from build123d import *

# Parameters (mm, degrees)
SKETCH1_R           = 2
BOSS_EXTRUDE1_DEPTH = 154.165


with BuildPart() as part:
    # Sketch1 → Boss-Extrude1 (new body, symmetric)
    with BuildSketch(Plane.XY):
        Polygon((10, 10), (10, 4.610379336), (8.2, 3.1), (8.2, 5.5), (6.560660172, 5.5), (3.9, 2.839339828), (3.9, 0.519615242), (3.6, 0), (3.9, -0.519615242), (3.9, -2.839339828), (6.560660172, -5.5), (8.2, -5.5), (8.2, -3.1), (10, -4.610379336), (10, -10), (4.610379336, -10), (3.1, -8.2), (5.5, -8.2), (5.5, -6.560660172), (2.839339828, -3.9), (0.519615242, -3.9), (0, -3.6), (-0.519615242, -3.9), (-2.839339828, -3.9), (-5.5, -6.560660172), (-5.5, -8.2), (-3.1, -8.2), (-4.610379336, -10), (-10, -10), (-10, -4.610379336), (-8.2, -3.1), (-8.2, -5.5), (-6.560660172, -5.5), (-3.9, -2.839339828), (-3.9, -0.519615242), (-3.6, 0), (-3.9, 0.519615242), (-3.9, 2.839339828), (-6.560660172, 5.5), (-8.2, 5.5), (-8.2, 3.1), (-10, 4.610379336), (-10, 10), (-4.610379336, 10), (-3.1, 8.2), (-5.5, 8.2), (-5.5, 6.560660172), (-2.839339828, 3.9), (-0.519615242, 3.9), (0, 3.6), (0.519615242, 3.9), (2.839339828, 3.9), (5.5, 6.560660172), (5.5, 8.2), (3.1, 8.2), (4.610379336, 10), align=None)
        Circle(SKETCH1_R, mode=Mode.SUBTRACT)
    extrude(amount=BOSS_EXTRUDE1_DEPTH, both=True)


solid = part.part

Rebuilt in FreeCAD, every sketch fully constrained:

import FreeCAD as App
import Part
import Sketcher
from FreeCAD import Vector
Q = App.Units.Quantity

doc = App.newDocument("Part")
params = doc.addObject("Spreadsheet::Sheet", "Params")
for row, (alias, value) in enumerate([
    ("sketch1_diameter", "4 mm"),
    ("sketch1_width", "2.4 mm"),
    ("sketch1_length", "0.6 mm"),
    ("pad1_length", "308.33 mm"),
], start=1):
    params.set(f"A{row}", alias)
    params.set(f"B{row}", "=" + value)
    params.setAlias(f"B{row}", alias)

body = doc.addObject("PartDesign::Body", "Body")

# Sketch on XY plane
sketch1 = body.newObject("Sketcher::SketchObject", "Sketch")
sketch1.AttachmentSupport = (doc.getObject("XY_Plane"), [""])
sketch1.MapMode = "FlatFace"
sketch1.addGeometry([
    Part.LineSegment(Vector(10, 4.6, 0), Vector(10, 10, 0)),  # 0
    Part.LineSegment(Vector(10, 10, 0), Vector(4.6, 10, 0)),  # 1
    Part.LineSegment(Vector(4.6, 10, 0), Vector(3.1, 8.2, 0)),  # 2
    Part.LineSegment(Vector(3.1, 8.2, 0), Vector(5.5, 8.2, 0)),  # 3
    Part.LineSegment(Vector(5.5, 8.2, 0), Vector(5.5, 6.6, 0)),  # 4
    Part.LineSegment(Vector(5.5, 6.6, 0), Vector(2.8, 3.9, 0)),  # 5
    Part.LineSegment(Vector(2.8, 3.9, 0), Vector(0.5, 3.9, 0)),  # 6
    Part.LineSegment(Vector(0.5, 3.9, 0), Vector(0, 3.6, 0)),  # 7
    Part.LineSegment(Vector(0, 3.6, 0), Vector(-0.5, 3.9, 0)),  # 8
    Part.LineSegment(Vector(-0.5, 3.9, 0), Vector(-2.8, 3.9, 0)),  # 9
    Part.LineSegment(Vector(-2.8, 3.9, 0), Vector(-5.5, 6.6, 0)),  # 10
    Part.LineSegment(Vector(-5.5, 6.6, 0), Vector(-5.5, 8.2, 0)),  # 11
    Part.LineSegment(Vector(-5.5, 8.2, 0), Vector(-3.1, 8.2, 0)),  # 12
    Part.LineSegment(Vector(-3.1, 8.2, 0), Vector(-4.6, 10, 0)),  # 13
    Part.LineSegment(Vector(-4.6, 10, 0), Vector(-10, 10, 0)),  # 14
    Part.LineSegment(Vector(-10, 10, 0), Vector(-10, 4.6, 0)),  # 15
    Part.LineSegment(Vector(-10, 4.6, 0), Vector(-8.2, 3.1, 0)),  # 16
    Part.LineSegment(Vector(-8.2, 3.1, 0), Vector(-8.2, 5.5, 0)),  # 17
    Part.LineSegment(Vector(-8.2, 5.5, 0), Vector(-6.6, 5.5, 0)),  # 18
    Part.LineSegment(Vector(-6.6, 5.5, 0), Vector(-3.9, 2.8, 0)),  # 19
    Part.LineSegment(Vector(-3.9, 2.8, 0), Vector(-3.9, 0.5, 0)),  # 20
    Part.LineSegment(Vector(-3.9, 0.5, 0), Vector(-3.6, 0, 0)),  # 21
    Part.LineSegment(Vector(-3.6, 0, 0), Vector(-3.9, -0.5, 0)),  # 22
    Part.LineSegment(Vector(-3.9, -0.5, 0), Vector(-3.9, -2.8, 0)),  # 23
    Part.LineSegment(Vector(-3.9, -2.8, 0), Vector(-6.6, -5.5, 0)),  # 24
    Part.LineSegment(Vector(-6.6, -5.5, 0), Vector(-8.2, -5.5, 0)),  # 25
    Part.LineSegment(Vector(-8.2, -5.5, 0), Vector(-8.2, -3.1, 0)),  # 26
    Part.LineSegment(Vector(-8.2, -3.1, 0), Vector(-10, -4.6, 0)),  # 27
    Part.LineSegment(Vector(-10, -4.6, 0), Vector(-10, -10, 0)),  # 28
    Part.LineSegment(Vector(-10, -10, 0), Vector(-4.6, -10, 0)),  # 29
    Part.LineSegment(Vector(-4.6, -10, 0), Vector(-3.1, -8.2, 0)),  # 30
    Part.LineSegment(Vector(-3.1, -8.2, 0), Vector(-5.5, -8.2, 0)),  # 31
    Part.LineSegment(Vector(-5.5, -8.2, 0), Vector(-5.5, -6.6, 0)),  # 32
    Part.LineSegment(Vector(-5.5, -6.6, 0), Vector(-2.8, -3.9, 0)),  # 33
    Part.LineSegment(Vector(-2.8, -3.9, 0), Vector(-0.5, -3.9, 0)),  # 34
    Part.LineSegment(Vector(-0.5, -3.9, 0), Vector(0, -3.6, 0)),  # 35
    Part.LineSegment(Vector(0, -3.6, 0), Vector(0.5, -3.9, 0)),  # 36
    Part.LineSegment(Vector(0.5, -3.9, 0), Vector(2.8, -3.9, 0)),  # 37
    Part.LineSegment(Vector(2.8, -3.9, 0), Vector(5.5, -6.6, 0)),  # 38
    Part.LineSegment(Vector(5.5, -6.6, 0), Vector(5.5, -8.2, 0)),  # 39
    Part.LineSegment(Vector(5.5, -8.2, 0), Vector(3.1, -8.2, 0)),  # 40
    Part.LineSegment(Vector(3.1, -8.2, 0), Vector(4.6, -10, 0)),  # 41
    Part.LineSegment(Vector(4.6, -10, 0), Vector(10, -10, 0)),  # 42
    Part.LineSegment(Vector(10, -10, 0), Vector(10, -4.6, 0)),  # 43
    Part.LineSegment(Vector(10, -4.6, 0), Vector(8.2, -3.1, 0)),  # 44
    Part.LineSegment(Vector(8.2, -3.1, 0), Vector(8.2, -5.5, 0)),  # 45
    Part.LineSegment(Vector(8.2, -5.5, 0), Vector(6.6, -5.5, 0)),  # 46
    Part.LineSegment(Vector(6.6, -5.5, 0), Vector(3.9, -2.8, 0)),  # 47
    Part.LineSegment(Vector(3.9, -2.8, 0), Vector(3.9, -0.5, 0)),  # 48
    Part.LineSegment(Vector(3.9, -0.5, 0), Vector(3.6, 0, 0)),  # 49
    Part.LineSegment(Vector(3.6, 0, 0), Vector(3.9, 0.5, 0)),  # 50
    Part.LineSegment(Vector(3.9, 0.5, 0), Vector(3.9, 2.8, 0)),  # 51
    Part.LineSegment(Vector(3.9, 2.8, 0), Vector(6.6, 5.5, 0)),  # 52
    Part.LineSegment(Vector(6.6, 5.5, 0), Vector(8.2, 5.5, 0)),  # 53
    Part.LineSegment(Vector(8.2, 5.5, 0), Vector(8.2, 3.1, 0)),  # 54
    Part.LineSegment(Vector(8.2, 3.1, 0), Vector(10, 4.6, 0)),  # 55
    Part.Circle(Vector(0, 0, 0), Vector(0, 0, 1), 2),  # 56
], False)
sketch1.addConstraint([
    Sketcher.Constraint("Coincident", 0, 2, 1, 1),
    Sketcher.Constraint("Coincident", 1, 2, 2, 1),
    Sketcher.Constraint("Coincident", 2, 2, 3, 1),
    Sketcher.Constraint("Coincident", 3, 2, 4, 1),
    Sketcher.Constraint("Coincident", 4, 2, 5, 1),
    Sketcher.Constraint("Coincident", 5, 2, 6, 1),
    Sketcher.Constraint("Coincident", 6, 2, 7, 1),
    Sketcher.Constraint("Coincident", 7, 2, 8, 1),
    Sketcher.Constraint("Coincident", 8, 2, 9, 1),
    Sketcher.Constraint("Coincident", 9, 2, 10, 1),
    Sketcher.Constraint("Coincident", 10, 2, 11, 1),
    Sketcher.Constraint("Coincident", 11, 2, 12, 1),
    Sketcher.Constraint("Coincident", 12, 2, 13, 1),
    Sketcher.Constraint("Coincident", 13, 2, 14, 1),
    Sketcher.Constraint("Coincident", 14, 2, 15, 1),
    Sketcher.Constraint("Coincident", 15, 2, 16, 1),
    Sketcher.Constraint("Coincident", 16, 2, 17, 1),
    Sketcher.Constraint("Coincident", 17, 2, 18, 1),
    Sketcher.Constraint("Coincident", 18, 2, 19, 1),
    Sketcher.Constraint("Coincident", 19, 2, 20, 1),
    Sketcher.Constraint("Coincident", 20, 2, 21, 1),
    Sketcher.Constraint("Coincident", 21, 2, 22, 1),
    Sketcher.Constraint("Coincident", 22, 2, 23, 1),
    Sketcher.Constraint("Coincident", 23, 2, 24, 1),
    Sketcher.Constraint("Coincident", 24, 2, 25, 1),
    Sketcher.Constraint("Coincident", 25, 2, 26, 1),
    Sketcher.Constraint("Coincident", 26, 2, 27, 1),
    Sketcher.Constraint("Coincident", 27, 2, 28, 1),
    Sketcher.Constraint("Coincident", 28, 2, 29, 1),
    Sketcher.Constraint("Coincident", 29, 2, 30, 1),
    Sketcher.Constraint("Coincident", 30, 2, 31, 1),
    Sketcher.Constraint("Coincident", 31, 2, 32, 1),
    Sketcher.Constraint("Coincident", 32, 2, 33, 1),
    Sketcher.Constraint("Coincident", 33, 2, 34, 1),
    Sketcher.Constraint("Coincident", 34, 2, 35, 1),
    Sketcher.Constraint("Coincident", 35, 2, 36, 1),
    Sketcher.Constraint("Coincident", 36, 2, 37, 1),
    Sketcher.Constraint("Coincident", 37, 2, 38, 1),
    Sketcher.Constraint("Coincident", 38, 2, 39, 1),
    Sketcher.Constraint("Coincident", 39, 2, 40, 1),
    Sketcher.Constraint("Coincident", 40, 2, 41, 1),
    Sketcher.Constraint("Coincident", 41, 2, 42, 1),
    Sketcher.Constraint("Coincident", 42, 2, 43, 1),
    Sketcher.Constraint("Coincident", 43, 2, 44, 1),
    Sketcher.Constraint("Coincident", 44, 2, 45, 1),
    Sketcher.Constraint("Coincident", 45, 2, 46, 1),
    Sketcher.Constraint("Coincident", 46, 2, 47, 1),
    Sketcher.Constraint("Coincident", 47, 2, 48, 1),
    Sketcher.Constraint("Coincident", 48, 2, 49, 1),
    Sketcher.Constraint("Coincident", 49, 2, 50, 1),
    Sketcher.Constraint("Coincident", 50, 2, 51, 1),
    Sketcher.Constraint("Coincident", 51, 2, 52, 1),
    Sketcher.Constraint("Coincident", 52, 2, 53, 1),
    Sketcher.Constraint("Coincident", 53, 2, 54, 1),
    Sketcher.Constraint("Coincident", 54, 2, 55, 1),
    Sketcher.Constraint("Coincident", 55, 2, 0, 1),
    Sketcher.Constraint("Vertical", 0),
    Sketcher.Constraint("Horizontal", 1),
    Sketcher.Constraint("Horizontal", 3),
    Sketcher.Constraint("Vertical", 4),
    Sketcher.Constraint("Horizontal", 6),
    Sketcher.Constraint("Horizontal", 9),
    Sketcher.Constraint("Vertical", 11),
    Sketcher.Constraint("Horizontal", 12),
    Sketcher.Constraint("Horizontal", 14),
    Sketcher.Constraint("Vertical", 15),
    Sketcher.Constraint("Vertical", 17),
    Sketcher.Constraint("Horizontal", 18),
    Sketcher.Constraint("Vertical", 20),
    Sketcher.Constraint("Vertical", 23),
    Sketcher.Constraint("Horizontal", 25),
    Sketcher.Constraint("Vertical", 26),
    Sketcher.Constraint("Vertical", 28),
    Sketcher.Constraint("Horizontal", 29),
    Sketcher.Constraint("Horizontal", 31),
    Sketcher.Constraint("Vertical", 32),
    Sketcher.Constraint("Horizontal", 34),
    Sketcher.Constraint("Horizontal", 37),
    Sketcher.Constraint("Vertical", 39),
    Sketcher.Constraint("Horizontal", 40),
    Sketcher.Constraint("Horizontal", 42),
    Sketcher.Constraint("Vertical", 43),
    Sketcher.Constraint("Vertical", 45),
    Sketcher.Constraint("Horizontal", 46),
    Sketcher.Constraint("Vertical", 48),
    Sketcher.Constraint("Vertical", 51),
    Sketcher.Constraint("Horizontal", 53),
    Sketcher.Constraint("Vertical", 54),
    Sketcher.Constraint("Coincident", 56, 3, -1, 1),
    Sketcher.Constraint("Symmetric", 0, 2, 28, 2, -1, 1),
    Sketcher.Constraint("Symmetric", 2, 2, 30, 2, -1, 1),
    Sketcher.Constraint("Symmetric", 4, 2, 32, 2, -1, 1),
    Sketcher.Constraint("Symmetric", 5, 2, 33, 2, -1, 1),
    Sketcher.Constraint("Symmetric", 7, 2, 35, 2, -1, 1),
    Sketcher.Constraint("Symmetric", 8, 2, 36, 2, -1, 1),
    Sketcher.Constraint("Symmetric", 10, 2, 38, 2, -1, 1),
    Sketcher.Constraint("Symmetric", 12, 2, 40, 2, -1, 1),
    Sketcher.Constraint("Symmetric", 13, 2, 41, 2, -1, 1),
    Sketcher.Constraint("Symmetric", 15, 2, 43, 2, -1, 1),
    Sketcher.Constraint("Symmetric", 16, 2, 44, 2, -1, 1),
    Sketcher.Constraint("Symmetric", 18, 2, 46, 2, -1, 1),
    Sketcher.Constraint("Symmetric", 19, 2, 47, 2, -1, 1),
    Sketcher.Constraint("Symmetric", 21, 2, 49, 2, -1, 1),
    Sketcher.Constraint("Symmetric", 22, 2, 50, 2, -1, 1),
    Sketcher.Constraint("Symmetric", 24, 2, 52, 2, -1, 1),
    Sketcher.Constraint("Symmetric", 26, 2, 54, 2, -1, 1),
    Sketcher.Constraint("Symmetric", 6, 2, 8, 2, -2),
    Sketcher.Constraint("Symmetric", 4, 2, 10, 2, -2),
    Sketcher.Constraint("Symmetric", 2, 2, 12, 2, -2),
    Sketcher.Constraint("Symmetric", 1, 2, 13, 2, -2),
    Sketcher.Constraint("Symmetric", 27, 2, 43, 2, -2),
    Sketcher.Constraint("Symmetric", 26, 2, 44, 2, -2),
    Sketcher.Constraint("Symmetric", 24, 2, 46, 2, -2),
    Sketcher.Constraint("Symmetric", 23, 2, 47, 2, -2),
    Sketcher.Constraint("PointOnObject", 7, 2, -2),
    Sketcher.Constraint("PointOnObject", 21, 2, -1),
    Sketcher.Constraint("Perpendicular", 5, 10),
    Sketcher.Constraint("Perpendicular", 2, 16),
    Sketcher.Constraint("Parallel", 10, 19),
    Sketcher.Constraint("Perpendicular", 7, 21),
    Sketcher.Constraint("Perpendicular", 8, 22),
    Sketcher.Constraint("Perpendicular", 19, 24),
    Sketcher.Constraint("Perpendicular", 16, 30),
    Sketcher.Constraint("Perpendicular", 21, 35),
    Sketcher.Constraint("Perpendicular", 33, 38),
    Sketcher.Constraint("Perpendicular", 35, 49),
    Sketcher.Constraint("Perpendicular", 47, 52),
    Sketcher.Constraint("Perpendicular", 41, 55),
    Sketcher.Constraint("Equal", 42, 0),
    Sketcher.Constraint("Equal", 53, 4),
    Sketcher.Constraint("Equal", 40, 17),
    Sketcher.Constraint("Equal", 37, 20),
    Sketcher.Constraint("Equal", 13, 16),
    Sketcher.Constraint("Equal", 10, 19),
    Sketcher.Constraint("Equal", 8, 21),
    Sketcher.Constraint("Diameter", 56, Q("4 mm")),
    Sketcher.Constraint("Angle", 2, Q("-130 deg")),
    Sketcher.Constraint("Angle", 7, Q("-150 deg")),
    Sketcher.Constraint("DistanceX", 3, 1, 3, 2, Q("2.4 mm")),
    Sketcher.Constraint("DistanceX", -1, 1, 0, 2, Q("10 mm")),
    Sketcher.Constraint("Distance", 7, Q("0.6 mm")),
    Sketcher.Constraint("DistanceX", -1, 1, 2, 2, Q("3.1 mm")),
    Sketcher.Constraint("DistanceY", -1, 1, 2, 2, Q("8.2 mm")),
    Sketcher.Constraint("DistanceY", -1, 1, 5, 2, Q("3.9 mm")),
    Sketcher.Constraint("DistanceX", 18, 1, 18, 2, Q("1.63934 mm")),
])
sketch1.setExpression("Constraints[135]", "Params.sketch1_diameter")
sketch1.setExpression("Constraints[138]", "Params.sketch1_width")
sketch1.setExpression("Constraints[140]", "Params.sketch1_length")
pad1 = body.newObject("PartDesign::Pad", "Pad")
pad1.Profile = sketch1
pad1.setExpression("Length", "Params.pad1_length")
pad1.Midplane = True

doc.recompute()
